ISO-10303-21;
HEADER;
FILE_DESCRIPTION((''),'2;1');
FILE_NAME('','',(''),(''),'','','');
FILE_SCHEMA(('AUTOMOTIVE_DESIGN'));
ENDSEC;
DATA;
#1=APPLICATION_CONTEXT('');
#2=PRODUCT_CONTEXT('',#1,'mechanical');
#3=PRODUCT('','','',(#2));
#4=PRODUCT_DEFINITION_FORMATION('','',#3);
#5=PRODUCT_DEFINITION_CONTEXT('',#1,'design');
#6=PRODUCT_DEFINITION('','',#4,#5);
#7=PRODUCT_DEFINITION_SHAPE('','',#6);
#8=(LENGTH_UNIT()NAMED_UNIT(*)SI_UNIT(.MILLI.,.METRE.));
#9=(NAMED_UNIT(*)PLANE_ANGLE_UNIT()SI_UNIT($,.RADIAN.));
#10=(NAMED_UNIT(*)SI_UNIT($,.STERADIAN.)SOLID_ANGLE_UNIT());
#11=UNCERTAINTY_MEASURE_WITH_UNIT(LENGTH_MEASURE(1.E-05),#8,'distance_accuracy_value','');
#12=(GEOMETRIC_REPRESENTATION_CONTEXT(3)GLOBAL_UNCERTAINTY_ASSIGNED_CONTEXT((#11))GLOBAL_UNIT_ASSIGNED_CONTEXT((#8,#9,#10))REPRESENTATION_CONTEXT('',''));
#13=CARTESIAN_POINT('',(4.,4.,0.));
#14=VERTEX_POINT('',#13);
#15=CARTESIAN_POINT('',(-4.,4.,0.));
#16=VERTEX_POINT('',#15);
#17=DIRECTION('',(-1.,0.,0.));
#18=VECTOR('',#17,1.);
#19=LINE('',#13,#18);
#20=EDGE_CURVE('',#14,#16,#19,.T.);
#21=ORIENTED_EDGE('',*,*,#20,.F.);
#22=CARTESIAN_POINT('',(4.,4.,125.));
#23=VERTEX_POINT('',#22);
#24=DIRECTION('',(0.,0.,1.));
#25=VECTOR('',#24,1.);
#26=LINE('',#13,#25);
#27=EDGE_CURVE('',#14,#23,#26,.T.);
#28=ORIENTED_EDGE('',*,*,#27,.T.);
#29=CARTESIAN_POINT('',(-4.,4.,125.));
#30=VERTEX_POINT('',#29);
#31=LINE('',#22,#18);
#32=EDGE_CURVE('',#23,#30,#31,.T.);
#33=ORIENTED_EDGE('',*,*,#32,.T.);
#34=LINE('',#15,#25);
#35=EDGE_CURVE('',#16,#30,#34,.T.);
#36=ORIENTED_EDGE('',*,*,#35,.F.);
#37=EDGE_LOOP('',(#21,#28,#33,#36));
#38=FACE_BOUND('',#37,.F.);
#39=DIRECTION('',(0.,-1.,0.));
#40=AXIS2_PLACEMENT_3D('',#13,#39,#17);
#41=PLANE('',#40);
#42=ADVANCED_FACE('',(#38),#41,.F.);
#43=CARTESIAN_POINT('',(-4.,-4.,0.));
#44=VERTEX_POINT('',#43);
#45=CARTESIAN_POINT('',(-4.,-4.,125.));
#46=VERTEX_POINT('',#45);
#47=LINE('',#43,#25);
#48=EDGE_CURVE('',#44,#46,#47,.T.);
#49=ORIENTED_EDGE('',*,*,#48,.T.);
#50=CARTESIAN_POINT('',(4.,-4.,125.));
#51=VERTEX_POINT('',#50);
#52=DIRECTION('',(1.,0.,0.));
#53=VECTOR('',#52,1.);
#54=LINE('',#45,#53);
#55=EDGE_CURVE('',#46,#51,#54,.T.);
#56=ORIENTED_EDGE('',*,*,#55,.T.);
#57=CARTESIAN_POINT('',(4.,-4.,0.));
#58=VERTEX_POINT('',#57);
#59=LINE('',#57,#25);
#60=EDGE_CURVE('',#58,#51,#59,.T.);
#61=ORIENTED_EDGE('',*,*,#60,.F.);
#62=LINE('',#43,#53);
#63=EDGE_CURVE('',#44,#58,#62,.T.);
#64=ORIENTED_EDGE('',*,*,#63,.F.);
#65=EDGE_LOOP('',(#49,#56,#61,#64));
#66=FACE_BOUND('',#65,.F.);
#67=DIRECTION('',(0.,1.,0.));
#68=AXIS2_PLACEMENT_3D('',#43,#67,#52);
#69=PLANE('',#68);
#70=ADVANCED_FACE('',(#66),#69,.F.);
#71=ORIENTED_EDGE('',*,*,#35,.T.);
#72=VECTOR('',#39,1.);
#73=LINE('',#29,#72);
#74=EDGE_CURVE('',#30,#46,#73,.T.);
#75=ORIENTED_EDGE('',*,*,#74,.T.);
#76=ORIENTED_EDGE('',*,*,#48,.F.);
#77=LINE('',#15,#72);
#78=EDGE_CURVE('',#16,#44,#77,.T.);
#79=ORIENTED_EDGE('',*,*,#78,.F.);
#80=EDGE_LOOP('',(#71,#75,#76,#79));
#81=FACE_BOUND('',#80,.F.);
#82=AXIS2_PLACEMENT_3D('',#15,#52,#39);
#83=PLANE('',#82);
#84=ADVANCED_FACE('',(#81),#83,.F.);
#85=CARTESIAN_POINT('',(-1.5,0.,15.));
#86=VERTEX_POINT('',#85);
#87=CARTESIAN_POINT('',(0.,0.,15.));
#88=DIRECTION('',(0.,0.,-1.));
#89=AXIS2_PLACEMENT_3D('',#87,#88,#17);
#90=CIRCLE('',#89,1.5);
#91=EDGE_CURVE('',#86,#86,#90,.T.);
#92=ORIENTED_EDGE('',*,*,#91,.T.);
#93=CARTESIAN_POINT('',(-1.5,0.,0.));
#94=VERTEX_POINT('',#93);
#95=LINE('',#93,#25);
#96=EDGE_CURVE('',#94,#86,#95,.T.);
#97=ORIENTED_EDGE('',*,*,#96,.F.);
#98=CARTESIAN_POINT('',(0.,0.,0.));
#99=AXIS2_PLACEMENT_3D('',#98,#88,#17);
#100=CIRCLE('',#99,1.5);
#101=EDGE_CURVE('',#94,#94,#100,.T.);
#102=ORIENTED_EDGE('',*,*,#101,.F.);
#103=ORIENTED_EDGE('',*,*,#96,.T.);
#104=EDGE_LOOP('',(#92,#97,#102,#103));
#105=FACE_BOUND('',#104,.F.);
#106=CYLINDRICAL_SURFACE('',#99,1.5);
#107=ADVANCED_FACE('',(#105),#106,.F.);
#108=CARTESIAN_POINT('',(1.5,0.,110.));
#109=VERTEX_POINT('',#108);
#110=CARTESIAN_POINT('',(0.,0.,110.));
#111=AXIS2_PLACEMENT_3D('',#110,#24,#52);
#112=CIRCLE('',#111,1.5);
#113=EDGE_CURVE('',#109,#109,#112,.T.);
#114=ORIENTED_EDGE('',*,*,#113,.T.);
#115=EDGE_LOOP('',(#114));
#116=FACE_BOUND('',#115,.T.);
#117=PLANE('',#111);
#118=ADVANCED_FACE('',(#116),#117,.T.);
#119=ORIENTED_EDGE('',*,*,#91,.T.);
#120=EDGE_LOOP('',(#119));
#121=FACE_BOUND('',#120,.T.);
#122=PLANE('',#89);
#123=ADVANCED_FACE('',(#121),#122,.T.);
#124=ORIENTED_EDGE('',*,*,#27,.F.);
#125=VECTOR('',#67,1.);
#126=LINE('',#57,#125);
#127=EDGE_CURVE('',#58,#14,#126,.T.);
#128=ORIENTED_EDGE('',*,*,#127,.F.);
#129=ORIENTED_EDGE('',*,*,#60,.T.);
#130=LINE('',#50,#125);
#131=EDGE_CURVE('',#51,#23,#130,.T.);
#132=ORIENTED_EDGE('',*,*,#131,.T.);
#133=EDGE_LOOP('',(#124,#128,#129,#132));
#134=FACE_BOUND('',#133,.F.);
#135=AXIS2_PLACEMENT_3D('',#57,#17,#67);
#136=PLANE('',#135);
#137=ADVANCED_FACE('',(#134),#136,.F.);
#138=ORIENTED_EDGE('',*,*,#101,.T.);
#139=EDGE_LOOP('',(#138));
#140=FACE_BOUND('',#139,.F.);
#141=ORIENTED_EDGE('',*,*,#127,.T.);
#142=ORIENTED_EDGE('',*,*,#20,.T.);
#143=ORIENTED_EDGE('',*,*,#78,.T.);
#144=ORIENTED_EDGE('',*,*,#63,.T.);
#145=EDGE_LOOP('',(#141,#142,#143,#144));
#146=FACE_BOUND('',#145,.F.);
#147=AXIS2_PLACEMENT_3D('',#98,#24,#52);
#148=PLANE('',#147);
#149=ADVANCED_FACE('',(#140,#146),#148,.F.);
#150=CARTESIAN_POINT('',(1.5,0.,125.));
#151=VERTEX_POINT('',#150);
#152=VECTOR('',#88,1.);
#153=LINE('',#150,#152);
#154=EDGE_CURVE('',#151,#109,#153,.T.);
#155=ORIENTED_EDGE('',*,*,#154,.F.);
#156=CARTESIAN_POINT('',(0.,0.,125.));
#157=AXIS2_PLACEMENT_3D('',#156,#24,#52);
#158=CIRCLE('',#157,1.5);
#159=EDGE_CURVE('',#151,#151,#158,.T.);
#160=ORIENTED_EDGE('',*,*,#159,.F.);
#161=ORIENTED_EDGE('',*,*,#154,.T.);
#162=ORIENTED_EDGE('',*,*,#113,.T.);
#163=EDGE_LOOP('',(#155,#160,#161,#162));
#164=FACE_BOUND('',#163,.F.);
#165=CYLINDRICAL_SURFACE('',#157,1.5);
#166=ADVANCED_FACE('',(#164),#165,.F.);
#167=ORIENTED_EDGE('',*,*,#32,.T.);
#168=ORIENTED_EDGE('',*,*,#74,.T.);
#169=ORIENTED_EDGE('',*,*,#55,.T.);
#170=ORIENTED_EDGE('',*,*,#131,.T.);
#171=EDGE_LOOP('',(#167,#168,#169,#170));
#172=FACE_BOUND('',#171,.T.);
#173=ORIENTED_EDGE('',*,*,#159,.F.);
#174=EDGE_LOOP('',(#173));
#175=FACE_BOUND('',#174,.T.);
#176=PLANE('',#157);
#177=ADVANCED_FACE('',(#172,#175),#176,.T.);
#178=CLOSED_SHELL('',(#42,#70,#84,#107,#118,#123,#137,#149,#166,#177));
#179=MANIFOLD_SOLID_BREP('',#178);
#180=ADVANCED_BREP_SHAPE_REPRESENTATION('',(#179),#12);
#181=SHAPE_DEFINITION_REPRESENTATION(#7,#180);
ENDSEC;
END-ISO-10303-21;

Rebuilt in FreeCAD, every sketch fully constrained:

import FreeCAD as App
import Part
import Sketcher

V = App.Vector
Q = App.Units.Quantity

doc = App.newDocument("Part")
body = doc.addObject("PartDesign::Body", "Body")

# Sketch on XY plane
sketch1 = body.newObject("Sketcher::SketchObject", "Sketch")
sketch1.AttachmentSupport = (doc.getObject("XY_Plane"), [""])
sketch1.MapMode = "FlatFace"
sketch1.addGeometry(Part.LineSegment(V(4, -4, 0), V(4, 4, 0)), False)
sketch1.addGeometry(Part.LineSegment(V(4, 4, 0), V(-4, 4, 0)), False)
sketch1.addGeometry(Part.LineSegment(V(-4, 4, 0), V(-4, -4, 0)), False)
sketch1.addGeometry(Part.LineSegment(V(-4, -4, 0), V(4, -4, 0)), False)
sketch1.addConstraint(Sketcher.Constraint("Coincident", 0, 2, 1, 1))
sketch1.addConstraint(Sketcher.Constraint("Coincident", 1, 2, 2, 1))
sketch1.addConstraint(Sketcher.Constraint("Coincident", 2, 2, 3, 1))
sketch1.addConstraint(Sketcher.Constraint("Coincident", 3, 2, 0, 1))
sketch1.addConstraint(Sketcher.Constraint("Vertical", 0))
sketch1.addConstraint(Sketcher.Constraint("Horizontal", 1))
sketch1.addConstraint(Sketcher.Constraint("Vertical", 2))
sketch1.addConstraint(Sketcher.Constraint("Horizontal", 3))
sketch1.addConstraint(Sketcher.Constraint("Symmetric", 0, 2, 2, 2, -1, 1))
sketch1.addConstraint(Sketcher.Constraint("Equal", 3, 0))
sketch1.addConstraint(Sketcher.Constraint("DistanceX", 1, 2, 1, 1, Q("8 mm")))
pad1 = body.newObject("PartDesign::Pad", "Pad")
pad1.Profile = sketch1
pad1.Length = 125

# Sketch on XY plane
sketch2 = body.newObject("Sketcher::SketchObject", "Sketch001")
sketch2.AttachmentSupport = (doc.getObject("XY_Plane"), [""])
sketch2.MapMode = "FlatFace"
sketch2.AttachmentOffset = App.Placement(V(0, 0, 125), App.Rotation())
sketch2.addGeometry(Part.Circle(V(0, 0, 0), V(0, 0, 1), 1.5), False)
sketch2.addConstraint(Sketcher.Constraint("Coincident", 0, 3, -1, 1))
sketch2.addConstraint(Sketcher.Constraint("Diameter", 0, Q("3 mm")))
pocket1 = body.newObject("PartDesign::Pocket", "Pocket")
pocket1.Profile = sketch2
pocket1.Length = 15

# Sketch on XY plane
sketch3 = body.newObject("Sketcher::SketchObject", "Sketch002")
sketch3.AttachmentSupport = (doc.getObject("XY_Plane"), [""])
sketch3.MapMode = "FlatFace"
sketch3.addGeometry(Part.Circle(V(0, 0, 0), V(0, 0, 1), 1.5), False)
sketch3.addConstraint(Sketcher.Constraint("Coincident", 0, 3, -1, 1))
sketch3.addConstraint(Sketcher.Constraint("Diameter", 0, Q("3 mm")))
pocket2 = body.newObject("PartDesign::Pocket", "Pocket001")
pocket2.Profile = sketch3
pocket2.Length = 15
pocket2.Reversed = True

doc.recompute()
